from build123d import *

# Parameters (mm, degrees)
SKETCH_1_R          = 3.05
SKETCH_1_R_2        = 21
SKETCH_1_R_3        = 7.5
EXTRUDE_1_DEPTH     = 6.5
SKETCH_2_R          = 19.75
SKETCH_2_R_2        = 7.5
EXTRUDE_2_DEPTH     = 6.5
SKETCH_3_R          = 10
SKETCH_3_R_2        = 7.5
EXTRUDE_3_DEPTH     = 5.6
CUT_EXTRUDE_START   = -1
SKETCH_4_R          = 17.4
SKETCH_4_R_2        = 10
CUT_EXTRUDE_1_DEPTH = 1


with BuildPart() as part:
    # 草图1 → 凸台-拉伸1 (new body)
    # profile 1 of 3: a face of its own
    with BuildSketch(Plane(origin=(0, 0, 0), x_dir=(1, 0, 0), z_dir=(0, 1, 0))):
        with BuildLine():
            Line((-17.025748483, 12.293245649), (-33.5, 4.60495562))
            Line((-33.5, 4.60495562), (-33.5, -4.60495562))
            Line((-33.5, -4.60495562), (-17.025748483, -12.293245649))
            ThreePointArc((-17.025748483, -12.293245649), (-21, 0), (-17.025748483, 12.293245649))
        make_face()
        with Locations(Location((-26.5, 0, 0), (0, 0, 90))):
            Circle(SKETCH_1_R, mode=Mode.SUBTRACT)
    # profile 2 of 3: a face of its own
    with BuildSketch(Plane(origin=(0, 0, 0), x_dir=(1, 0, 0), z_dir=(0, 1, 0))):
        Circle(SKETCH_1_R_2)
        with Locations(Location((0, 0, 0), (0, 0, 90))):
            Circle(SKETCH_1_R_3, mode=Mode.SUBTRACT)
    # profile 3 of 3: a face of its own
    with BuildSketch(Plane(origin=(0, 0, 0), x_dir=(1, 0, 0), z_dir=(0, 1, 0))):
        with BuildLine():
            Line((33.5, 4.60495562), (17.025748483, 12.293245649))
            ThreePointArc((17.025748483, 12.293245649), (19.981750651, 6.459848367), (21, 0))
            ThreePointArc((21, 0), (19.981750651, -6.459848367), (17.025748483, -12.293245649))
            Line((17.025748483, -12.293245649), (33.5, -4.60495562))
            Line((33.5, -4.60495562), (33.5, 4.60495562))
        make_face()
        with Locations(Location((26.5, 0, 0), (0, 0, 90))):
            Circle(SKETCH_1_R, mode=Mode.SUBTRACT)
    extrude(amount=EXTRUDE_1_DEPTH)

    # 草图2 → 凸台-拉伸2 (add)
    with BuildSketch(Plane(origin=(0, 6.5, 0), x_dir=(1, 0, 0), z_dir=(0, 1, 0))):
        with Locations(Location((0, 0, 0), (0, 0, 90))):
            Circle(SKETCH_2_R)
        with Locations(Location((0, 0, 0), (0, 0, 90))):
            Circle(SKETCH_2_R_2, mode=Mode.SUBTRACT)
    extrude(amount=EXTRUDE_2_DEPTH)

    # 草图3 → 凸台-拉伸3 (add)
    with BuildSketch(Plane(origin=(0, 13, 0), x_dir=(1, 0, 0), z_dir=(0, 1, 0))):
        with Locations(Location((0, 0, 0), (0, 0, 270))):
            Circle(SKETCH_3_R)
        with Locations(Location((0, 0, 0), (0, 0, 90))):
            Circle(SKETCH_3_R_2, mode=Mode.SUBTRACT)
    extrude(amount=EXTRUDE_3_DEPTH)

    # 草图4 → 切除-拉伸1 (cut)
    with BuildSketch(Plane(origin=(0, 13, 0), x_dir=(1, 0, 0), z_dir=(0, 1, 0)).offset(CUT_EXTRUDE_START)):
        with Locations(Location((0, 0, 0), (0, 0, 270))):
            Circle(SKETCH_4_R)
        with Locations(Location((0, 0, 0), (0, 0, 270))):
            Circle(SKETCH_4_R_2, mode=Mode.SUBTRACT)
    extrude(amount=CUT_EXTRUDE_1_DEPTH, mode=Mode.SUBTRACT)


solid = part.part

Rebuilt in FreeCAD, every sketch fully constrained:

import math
import FreeCAD as App
import Part
import Sketcher
Q = App.Units.Quantity

doc = App.newDocument("Part")
body = doc.addObject("PartDesign::Body", "Body")

# Sketch on XZ plane
sketch1 = body.newObject("Sketcher::SketchObject", "Sketch")
sketch1.AttachmentSupport = (doc.getObject("XZ_Plane"), [""])
sketch1.MapMode = "FlatFace"
sketch1.addGeometry([
    Part.LineSegment(App.Vector(-17, -12.3, 0), App.Vector(-33.5, -4.6, 0)),  # 0
    Part.LineSegment(App.Vector(-33.5, -4.6, 0), App.Vector(-33.5, 4.6, 0)),  # 1
    Part.LineSegment(App.Vector(-33.5, 4.6, 0), App.Vector(-17, 12.3, 0)),  # 2
    Part.ArcOfCircle(Part.Circle(App.Vector(0, 0, 0), App.Vector(0, 0, 1), 21), math.radians(36), math.radians(144)),  # 3
    Part.LineSegment(App.Vector(17, 12.3, 0), App.Vector(33.5, 4.6, 0)),  # 4
    Part.LineSegment(App.Vector(33.5, 4.6, 0), App.Vector(33.5, -4.6, 0)),  # 5
    Part.LineSegment(App.Vector(33.5, -4.6, 0), App.Vector(17, -12.3, 0)),  # 6
    Part.ArcOfCircle(Part.Circle(App.Vector(0, 0, 0), App.Vector(0, 0, 1), 21), math.radians(-144), math.radians(-36)),  # 7
    Part.Circle(App.Vector(-26.5, 0, 0), App.Vector(0, 0, 1), 3),  # 8
    Part.Circle(App.Vector(0, 0, 0), App.Vector(0, 0, 1), 7.5),  # 9
    Part.Circle(App.Vector(26.5, 0, 0), App.Vector(0, 0, 1), 3),  # 10
], False)
sketch1.addConstraint([
    Sketcher.Constraint("Coincident", 0, 2, 1, 1),
    Sketcher.Constraint("Coincident", 1, 2, 2, 1),
    Sketcher.Constraint("Coincident", 2, 2, 3, 2),
    Sketcher.Constraint("Coincident", 3, 1, 4, 1),
    Sketcher.Constraint("Coincident", 4, 2, 5, 1),
    Sketcher.Constraint("Coincident", 5, 2, 6, 1),
    Sketcher.Constraint("Coincident", 6, 2, 7, 2),
    Sketcher.Constraint("Coincident", 7, 1, 0, 1),
    Sketcher.Constraint("Vertical", 1),
    Sketcher.Constraint("Vertical", 5),
    Sketcher.Constraint("Coincident", 3, 3, -1, 1),
    Sketcher.Constraint("Coincident", 7, 3, -1, 1),
    Sketcher.Constraint("Coincident", 9, 3, -1, 1),
    Sketcher.Constraint("Equal", 3, 7),
    Sketcher.Constraint("Equal", 8, 10),
    Sketcher.Constraint("Symmetric", 8, 3, 10, 3, -1, 1),
    Sketcher.Constraint("Symmetric", 0, 2, 4, 2, -1, 1),
    Sketcher.Constraint("PointOnObject", 8, 3, -1),
    Sketcher.Constraint("Parallel", 0, 4),
    Sketcher.Constraint("Parallel", 2, 6),
    Sketcher.Constraint("Horizontal", 2, 2, 3, 1),
    Sketcher.Constraint("Horizontal", 1, 2, 4, 2),
    Sketcher.Constraint("Horizontal", 0, 2, 5, 2),
    Sketcher.Constraint("Diameter", 9, Q("15 mm")),
    Sketcher.Constraint("Radius", 3, Q("21 mm")),
    Sketcher.Constraint("Diameter", 8, Q("6.1 mm")),
    Sketcher.Constraint("DistanceX", 8, 3, 10, 3, Q("53 mm")),
    Sketcher.Constraint("DistanceX", 0, 2, 8, 3, Q("7 mm")),
    Sketcher.Constraint("DistanceY", 1, 1, 1, 2, Q("9.209911 mm")),
    Sketcher.Constraint("DistanceY", 5, 2, 3, 1, Q("16.898201 mm")),
])
pad1 = body.newObject("PartDesign::Pad", "Pad")
pad1.Profile = sketch1
pad1.Length = 6.5
pad1.Reversed = True

# Sketch on XZ plane
sketch2 = body.newObject("Sketcher::SketchObject", "Sketch001")
sketch2.AttachmentSupport = (doc.getObject("XZ_Plane"), [""])
sketch2.MapMode = "FlatFace"
sketch2.AttachmentOffset = App.Placement(App.Vector(0, 0, -6.5), App.Rotation())
sketch2.addGeometry([
    Part.Circle(App.Vector(0, 0, 0), App.Vector(0, 0, 1), 20),
    Part.Circle(App.Vector(0, 0, 0), App.Vector(0, 0, 1), 8),
], False)
sketch2.addConstraint([
    Sketcher.Constraint("Coincident", 0, 3, -1, 1),
    Sketcher.Constraint("Coincident", 1, 3, -1, 1),
    Sketcher.Constraint("Diameter", 1, Q("15 mm")),
    Sketcher.Constraint("Diameter", 0, Q("39.5 mm")),
])
pad2 = body.newObject("PartDesign::Pad", "Pad001")
pad2.Profile = sketch2
pad2.Length = 6.5
pad2.Reversed = True

# Sketch on XZ plane
sketch3 = body.newObject("Sketcher::SketchObject", "Sketch002")
sketch3.AttachmentSupport = (doc.getObject("XZ_Plane"), [""])
sketch3.MapMode = "FlatFace"
sketch3.AttachmentOffset = App.Placement(App.Vector(0, 0, -13), App.Rotation())
sketch3.addGeometry([
    Part.Circle(App.Vector(0, 0, 0), App.Vector(0, 0, 1), 10),
    Part.Circle(App.Vector(0, 0, 0), App.Vector(0, 0, 1), 8),
], False)
sketch3.addConstraint([
    Sketcher.Constraint("Coincident", 0, 3, -1, 1),
    Sketcher.Constraint("Coincident", 1, 3, -1, 1),
    Sketcher.Constraint("Diameter", 0, Q("20 mm")),
    Sketcher.Constraint("Diameter", 1, Q("15 mm")),
])
pad3 = body.newObject("PartDesign::Pad", "Pad002")
pad3.Profile = sketch3
pad3.Length = 5.6
pad3.Reversed = True

# Sketch on XZ plane
sketch4 = body.newObject("Sketcher::SketchObject", "Sketch003")
sketch4.AttachmentSupport = (doc.getObject("XZ_Plane"), [""])
sketch4.MapMode = "FlatFace"
sketch4.AttachmentOffset = App.Placement(App.Vector(0, 0, -12), App.Rotation())
sketch4.addGeometry([
    Part.Circle(App.Vector(0, 0, 0), App.Vector(0, 0, 1), 17),
    Part.Circle(App.Vector(0, 0, 0), App.Vector(0, 0, 1), 10),
], False)
sketch4.addConstraint([
    Sketcher.Constraint("Coincident", 0, 3, -1, 1),
    Sketcher.Constraint("Coincident", 1, 3, -1, 1),
    Sketcher.Constraint("Diameter", 1, Q("20 mm")),
    Sketcher.Constraint("Diameter", 0, Q("34.8 mm")),
])
pocket1 = body.newObject("PartDesign::Pocket", "Pocket")
pocket1.Profile = sketch4
pocket1.Length = 1

doc.recompute()
